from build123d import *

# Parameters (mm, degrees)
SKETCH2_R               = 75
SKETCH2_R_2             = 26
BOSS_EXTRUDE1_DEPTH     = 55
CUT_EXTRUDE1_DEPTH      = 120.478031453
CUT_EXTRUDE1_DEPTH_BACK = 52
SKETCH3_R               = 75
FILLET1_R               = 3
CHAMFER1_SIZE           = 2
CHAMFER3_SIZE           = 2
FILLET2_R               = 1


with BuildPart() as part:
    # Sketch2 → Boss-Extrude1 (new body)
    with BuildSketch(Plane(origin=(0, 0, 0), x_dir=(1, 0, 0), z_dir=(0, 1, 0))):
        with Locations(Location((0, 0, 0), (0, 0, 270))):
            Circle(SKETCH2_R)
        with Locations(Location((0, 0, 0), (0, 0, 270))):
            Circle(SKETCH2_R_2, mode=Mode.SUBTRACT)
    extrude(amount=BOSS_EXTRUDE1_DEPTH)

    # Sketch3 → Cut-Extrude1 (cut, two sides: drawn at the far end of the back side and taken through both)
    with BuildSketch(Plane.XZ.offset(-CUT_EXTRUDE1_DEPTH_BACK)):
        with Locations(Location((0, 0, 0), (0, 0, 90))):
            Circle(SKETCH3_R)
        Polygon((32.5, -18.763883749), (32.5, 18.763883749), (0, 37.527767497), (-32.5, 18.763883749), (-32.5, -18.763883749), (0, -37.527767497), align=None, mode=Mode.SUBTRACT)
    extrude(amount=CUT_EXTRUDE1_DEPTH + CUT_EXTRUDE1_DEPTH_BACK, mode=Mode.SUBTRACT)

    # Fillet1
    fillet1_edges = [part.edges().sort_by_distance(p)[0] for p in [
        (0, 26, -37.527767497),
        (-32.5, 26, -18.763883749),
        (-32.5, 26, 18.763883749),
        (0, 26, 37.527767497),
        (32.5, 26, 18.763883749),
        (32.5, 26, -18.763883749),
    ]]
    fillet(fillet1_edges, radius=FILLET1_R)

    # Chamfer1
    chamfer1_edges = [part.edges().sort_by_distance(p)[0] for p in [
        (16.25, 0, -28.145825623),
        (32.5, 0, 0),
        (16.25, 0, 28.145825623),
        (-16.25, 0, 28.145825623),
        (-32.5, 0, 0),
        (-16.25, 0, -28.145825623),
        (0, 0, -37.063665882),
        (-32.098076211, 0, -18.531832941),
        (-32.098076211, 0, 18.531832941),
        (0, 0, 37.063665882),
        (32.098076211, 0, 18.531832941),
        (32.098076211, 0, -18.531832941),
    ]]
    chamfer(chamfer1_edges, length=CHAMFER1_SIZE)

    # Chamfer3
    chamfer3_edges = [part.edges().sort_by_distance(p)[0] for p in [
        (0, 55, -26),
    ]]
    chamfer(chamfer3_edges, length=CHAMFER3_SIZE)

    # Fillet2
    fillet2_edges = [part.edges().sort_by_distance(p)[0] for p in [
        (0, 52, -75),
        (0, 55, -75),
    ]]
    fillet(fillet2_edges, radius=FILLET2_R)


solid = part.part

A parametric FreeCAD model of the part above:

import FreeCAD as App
import Part
import Sketcher

V = App.Vector
Q = App.Units.Quantity


def edges_at(feature, points):
    """Names of the edges that pass closest to the given points."""
    edges = feature.Shape.Edges
    near = lambda p: min(range(len(edges)), key=lambda i: edges[i].distToShape(Part.Vertex(*p))[0])
    return sorted({f"Edge{near(p) + 1}" for p in points})

doc = App.newDocument("Part")
body = doc.addObject("PartDesign::Body", "Body")

# Sketch on XZ plane
sketch1 = body.newObject("Sketcher::SketchObject", "Sketch")
sketch1.AttachmentSupport = (doc.getObject("XZ_Plane"), [""])
sketch1.MapMode = "FlatFace"
sketch1.addGeometry([
    Part.Circle(V(0, 0, 0), V(0, 0, 1), 75),
    Part.Circle(V(0, 0, 0), V(0, 0, 1), 26),
], False)
sketch1.addConstraint([
    Sketcher.Constraint("Coincident", 0, 3, -1, 1),
    Sketcher.Constraint("Coincident", 1, 3, -1, 1),
    Sketcher.Constraint("Diameter", 0, 150.0),
    Sketcher.Constraint("Diameter", 1, 52.0),
])
pad1 = body.newObject("PartDesign::Pad", "Pad")
pad1.Profile = sketch1
pad1.Length = 55
pad1.Reversed = True

# Sketch on XZ plane
sketch2 = body.newObject("Sketcher::SketchObject", "Sketch001")
sketch2.AttachmentSupport = (doc.getObject("XZ_Plane"), [""])
sketch2.MapMode = "FlatFace"
sketch2.addGeometry([
    Part.Circle(V(0, 0, 0), V(0, 0, 1), 75),  # 0
    Part.LineSegment(V(32, 19, 0), V(32, -19, 0)),  # 1
    Part.LineSegment(V(32, -19, 0), V(0, -38, 0)),  # 2
    Part.LineSegment(V(0, -38, 0), V(-32, -19, 0)),  # 3
    Part.LineSegment(V(-32, -19, 0), V(-32, 19, 0)),  # 4
    Part.LineSegment(V(-32, 19, 0), V(0, 38, 0)),  # 5
    Part.LineSegment(V(0, 38, 0), V(32, 19, 0)),  # 6
], False)
sketch2.addConstraint([
    Sketcher.Constraint("Coincident", 1, 2, 2, 1),
    Sketcher.Constraint("Coincident", 2, 2, 3, 1),
    Sketcher.Constraint("Coincident", 3, 2, 4, 1),
    Sketcher.Constraint("Coincident", 4, 2, 5, 1),
    Sketcher.Constraint("Coincident", 5, 2, 6, 1),
    Sketcher.Constraint("Coincident", 6, 2, 1, 1),
    Sketcher.Constraint("Vertical", 1),
    Sketcher.Constraint("Vertical", 4),
    Sketcher.Constraint("Coincident", 0, 3, -1, 1),
    Sketcher.Constraint("Symmetric", 1, 2, 4, 2, -1, 1),
    Sketcher.Constraint("Symmetric", 2, 2, 5, 2, -1, 1),
    Sketcher.Constraint("PointOnObject", 2, 2, -2),
    Sketcher.Constraint("Parallel", 3, 6),
    Sketcher.Constraint("Horizontal", 1, 2, 3, 2),
    Sketcher.Constraint("Diameter", 0, 150.0),
    Sketcher.Constraint("Angle", 2, Q("-150 deg")),
    Sketcher.Constraint("DistanceX", 3, 2, 1, 2, 65.0),
    Sketcher.Constraint("DistanceY", 1, 2, 1, 1, 37.527767),
])
pocket1 = body.newObject("PartDesign::Pocket", "Pocket")
pocket1.Profile = sketch2
pocket1.Type = "TwoLengths"
pocket1.Length = 120.478031
pocket1.Length2 = 52
pocket1.Reversed = True
doc.recompute()

fillet = body.newObject("PartDesign::Fillet", "Fillet")
fillet.Base = (pocket1, edges_at(pocket1, [
    (0, 26, -37.528),
    (-32.5, 26, -18.764),
    (-32.5, 26, 18.764),
    (0, 26, 37.528),
    (32.5, 26, 18.764),
    (32.5, 26, -18.764),
]))
fillet.Radius = 3
doc.recompute()

chamfer = body.newObject("PartDesign::Chamfer", "Chamfer")
chamfer.Base = (fillet, edges_at(fillet, [
    (16.25, 0, -28.146),
    (32.5, 0, 0),
    (16.25, 0, 28.146),
    (-16.25, 0, 28.146),
    (-32.5, 0, 0),
    (-16.25, 0, -28.146),
    (0, 0, -37.064),
    (-32.098, 0, -18.532),
    (-32.098, 0, 18.532),
    (0, 0, 37.064),
    (32.098, 0, 18.532),
    (32.098, 0, -18.532),
]))
chamfer.Size = 2
doc.recompute()

chamfer2 = body.newObject("PartDesign::Chamfer", "Chamfer001")
chamfer2.Base = (chamfer, edges_at(chamfer, [(0, 55, -26)]))
chamfer2.Size = 2
doc.recompute()

fillet2 = body.newObject("PartDesign::Fillet", "Fillet001")
fillet2.Base = (chamfer2, edges_at(chamfer2, [(0, 52, -75), (0, 55, -75)]))
fillet2.Radius = 1

doc.recompute()
